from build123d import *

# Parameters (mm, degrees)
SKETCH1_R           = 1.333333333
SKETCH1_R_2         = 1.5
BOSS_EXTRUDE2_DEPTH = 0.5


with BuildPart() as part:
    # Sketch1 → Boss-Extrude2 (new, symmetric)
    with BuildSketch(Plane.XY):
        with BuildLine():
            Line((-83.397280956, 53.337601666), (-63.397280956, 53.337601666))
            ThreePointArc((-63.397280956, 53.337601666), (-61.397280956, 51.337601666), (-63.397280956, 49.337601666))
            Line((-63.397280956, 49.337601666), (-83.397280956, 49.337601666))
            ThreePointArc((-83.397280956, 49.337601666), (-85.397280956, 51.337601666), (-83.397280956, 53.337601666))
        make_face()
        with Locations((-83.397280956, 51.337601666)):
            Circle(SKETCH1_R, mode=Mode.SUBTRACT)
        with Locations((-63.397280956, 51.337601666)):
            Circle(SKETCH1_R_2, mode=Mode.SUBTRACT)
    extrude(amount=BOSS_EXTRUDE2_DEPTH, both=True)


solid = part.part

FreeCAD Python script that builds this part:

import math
import FreeCAD as App
import Part
import Sketcher
Q = App.Units.Quantity

doc = App.newDocument("Part")
params = doc.addObject("Spreadsheet::Sheet", "Params")
for row, (alias, value) in enumerate([
    ("sketch1_diameter", "3 mm"),
    ("sketch1_radius", "2 mm"),
    ("sketch1_width", "20 mm"),
    ("pad1_length", "1 mm"),
], start=1):
    params.set(f"A{row}", alias)
    params.set(f"B{row}", "=" + value)
    params.setAlias(f"B{row}", alias)

body = doc.addObject("PartDesign::Body", "Body")

sketch1 = body.newObject("Sketcher::SketchObject", "Sketch")
sketch1.AttachmentSupport = (doc.getObject("XY_Plane"), [""])
sketch1.MapMode = "FlatFace"
sketch1.addGeometry([
    Part.LineSegment(App.Vector(-63.4, 53.3, 0), App.Vector(-83.4, 53.3, 0)),
    Part.ArcOfCircle(Part.Circle(App.Vector(-83.4, 51.3, 0), App.Vector(0, 0, 1), 2), math.radians(90), math.radians(270)),
    Part.LineSegment(App.Vector(-83.4, 49.3, 0), App.Vector(-63.4, 49.3, 0)),
    Part.ArcOfCircle(Part.Circle(App.Vector(-63.4, 51.3, 0), App.Vector(0, 0, 1), 2), math.radians(-90), math.radians(90)),
    Part.Circle(App.Vector(-63.4, 51.3, 0), App.Vector(0, 0, 1), 1.5),
    Part.Circle(App.Vector(-83.4, 51.3, 0), App.Vector(0, 0, 1), 1.3),
], False)
sketch1.addConstraint([
    Sketcher.Constraint("Tangent", 0, 2, 1, 1),
    Sketcher.Constraint("Tangent", 1, 2, 2, 1),
    Sketcher.Constraint("Tangent", 2, 2, 3, 1),
    Sketcher.Constraint("Tangent", 3, 2, 0, 1),
    Sketcher.Constraint("Horizontal", 0),
    Sketcher.Constraint("Horizontal", 2),
    Sketcher.Constraint("Coincident", 4, 3, 3, 3),
    Sketcher.Constraint("Coincident", 5, 3, 1, 3),
    Sketcher.Constraint("Diameter", 4, Q("3 mm")),
    Sketcher.Constraint("Radius", 1, Q("2 mm")),
    Sketcher.Constraint("DistanceX", 0, 2, 0, 1, Q("20 mm")),
    Sketcher.Constraint("Diameter", 5, Q("2.666667 mm")),
    Sketcher.Constraint("DistanceY", -1, 1, 1, 3, Q("51.337602 mm")),
    Sketcher.Constraint("DistanceX", 1, 3, -1, 1, Q("83.397281 mm")),
])
sketch1.setExpression("Constraints[8]", "Params.sketch1_diameter")
sketch1.setExpression("Constraints[9]", "Params.sketch1_radius")
sketch1.setExpression("Constraints[10]", "Params.sketch1_width")
pad1 = body.newObject("PartDesign::Pad", "Pad")
pad1.Profile = sketch1
pad1.setExpression("Length", "Params.pad1_length")
pad1.Midplane = True

doc.recompute()
